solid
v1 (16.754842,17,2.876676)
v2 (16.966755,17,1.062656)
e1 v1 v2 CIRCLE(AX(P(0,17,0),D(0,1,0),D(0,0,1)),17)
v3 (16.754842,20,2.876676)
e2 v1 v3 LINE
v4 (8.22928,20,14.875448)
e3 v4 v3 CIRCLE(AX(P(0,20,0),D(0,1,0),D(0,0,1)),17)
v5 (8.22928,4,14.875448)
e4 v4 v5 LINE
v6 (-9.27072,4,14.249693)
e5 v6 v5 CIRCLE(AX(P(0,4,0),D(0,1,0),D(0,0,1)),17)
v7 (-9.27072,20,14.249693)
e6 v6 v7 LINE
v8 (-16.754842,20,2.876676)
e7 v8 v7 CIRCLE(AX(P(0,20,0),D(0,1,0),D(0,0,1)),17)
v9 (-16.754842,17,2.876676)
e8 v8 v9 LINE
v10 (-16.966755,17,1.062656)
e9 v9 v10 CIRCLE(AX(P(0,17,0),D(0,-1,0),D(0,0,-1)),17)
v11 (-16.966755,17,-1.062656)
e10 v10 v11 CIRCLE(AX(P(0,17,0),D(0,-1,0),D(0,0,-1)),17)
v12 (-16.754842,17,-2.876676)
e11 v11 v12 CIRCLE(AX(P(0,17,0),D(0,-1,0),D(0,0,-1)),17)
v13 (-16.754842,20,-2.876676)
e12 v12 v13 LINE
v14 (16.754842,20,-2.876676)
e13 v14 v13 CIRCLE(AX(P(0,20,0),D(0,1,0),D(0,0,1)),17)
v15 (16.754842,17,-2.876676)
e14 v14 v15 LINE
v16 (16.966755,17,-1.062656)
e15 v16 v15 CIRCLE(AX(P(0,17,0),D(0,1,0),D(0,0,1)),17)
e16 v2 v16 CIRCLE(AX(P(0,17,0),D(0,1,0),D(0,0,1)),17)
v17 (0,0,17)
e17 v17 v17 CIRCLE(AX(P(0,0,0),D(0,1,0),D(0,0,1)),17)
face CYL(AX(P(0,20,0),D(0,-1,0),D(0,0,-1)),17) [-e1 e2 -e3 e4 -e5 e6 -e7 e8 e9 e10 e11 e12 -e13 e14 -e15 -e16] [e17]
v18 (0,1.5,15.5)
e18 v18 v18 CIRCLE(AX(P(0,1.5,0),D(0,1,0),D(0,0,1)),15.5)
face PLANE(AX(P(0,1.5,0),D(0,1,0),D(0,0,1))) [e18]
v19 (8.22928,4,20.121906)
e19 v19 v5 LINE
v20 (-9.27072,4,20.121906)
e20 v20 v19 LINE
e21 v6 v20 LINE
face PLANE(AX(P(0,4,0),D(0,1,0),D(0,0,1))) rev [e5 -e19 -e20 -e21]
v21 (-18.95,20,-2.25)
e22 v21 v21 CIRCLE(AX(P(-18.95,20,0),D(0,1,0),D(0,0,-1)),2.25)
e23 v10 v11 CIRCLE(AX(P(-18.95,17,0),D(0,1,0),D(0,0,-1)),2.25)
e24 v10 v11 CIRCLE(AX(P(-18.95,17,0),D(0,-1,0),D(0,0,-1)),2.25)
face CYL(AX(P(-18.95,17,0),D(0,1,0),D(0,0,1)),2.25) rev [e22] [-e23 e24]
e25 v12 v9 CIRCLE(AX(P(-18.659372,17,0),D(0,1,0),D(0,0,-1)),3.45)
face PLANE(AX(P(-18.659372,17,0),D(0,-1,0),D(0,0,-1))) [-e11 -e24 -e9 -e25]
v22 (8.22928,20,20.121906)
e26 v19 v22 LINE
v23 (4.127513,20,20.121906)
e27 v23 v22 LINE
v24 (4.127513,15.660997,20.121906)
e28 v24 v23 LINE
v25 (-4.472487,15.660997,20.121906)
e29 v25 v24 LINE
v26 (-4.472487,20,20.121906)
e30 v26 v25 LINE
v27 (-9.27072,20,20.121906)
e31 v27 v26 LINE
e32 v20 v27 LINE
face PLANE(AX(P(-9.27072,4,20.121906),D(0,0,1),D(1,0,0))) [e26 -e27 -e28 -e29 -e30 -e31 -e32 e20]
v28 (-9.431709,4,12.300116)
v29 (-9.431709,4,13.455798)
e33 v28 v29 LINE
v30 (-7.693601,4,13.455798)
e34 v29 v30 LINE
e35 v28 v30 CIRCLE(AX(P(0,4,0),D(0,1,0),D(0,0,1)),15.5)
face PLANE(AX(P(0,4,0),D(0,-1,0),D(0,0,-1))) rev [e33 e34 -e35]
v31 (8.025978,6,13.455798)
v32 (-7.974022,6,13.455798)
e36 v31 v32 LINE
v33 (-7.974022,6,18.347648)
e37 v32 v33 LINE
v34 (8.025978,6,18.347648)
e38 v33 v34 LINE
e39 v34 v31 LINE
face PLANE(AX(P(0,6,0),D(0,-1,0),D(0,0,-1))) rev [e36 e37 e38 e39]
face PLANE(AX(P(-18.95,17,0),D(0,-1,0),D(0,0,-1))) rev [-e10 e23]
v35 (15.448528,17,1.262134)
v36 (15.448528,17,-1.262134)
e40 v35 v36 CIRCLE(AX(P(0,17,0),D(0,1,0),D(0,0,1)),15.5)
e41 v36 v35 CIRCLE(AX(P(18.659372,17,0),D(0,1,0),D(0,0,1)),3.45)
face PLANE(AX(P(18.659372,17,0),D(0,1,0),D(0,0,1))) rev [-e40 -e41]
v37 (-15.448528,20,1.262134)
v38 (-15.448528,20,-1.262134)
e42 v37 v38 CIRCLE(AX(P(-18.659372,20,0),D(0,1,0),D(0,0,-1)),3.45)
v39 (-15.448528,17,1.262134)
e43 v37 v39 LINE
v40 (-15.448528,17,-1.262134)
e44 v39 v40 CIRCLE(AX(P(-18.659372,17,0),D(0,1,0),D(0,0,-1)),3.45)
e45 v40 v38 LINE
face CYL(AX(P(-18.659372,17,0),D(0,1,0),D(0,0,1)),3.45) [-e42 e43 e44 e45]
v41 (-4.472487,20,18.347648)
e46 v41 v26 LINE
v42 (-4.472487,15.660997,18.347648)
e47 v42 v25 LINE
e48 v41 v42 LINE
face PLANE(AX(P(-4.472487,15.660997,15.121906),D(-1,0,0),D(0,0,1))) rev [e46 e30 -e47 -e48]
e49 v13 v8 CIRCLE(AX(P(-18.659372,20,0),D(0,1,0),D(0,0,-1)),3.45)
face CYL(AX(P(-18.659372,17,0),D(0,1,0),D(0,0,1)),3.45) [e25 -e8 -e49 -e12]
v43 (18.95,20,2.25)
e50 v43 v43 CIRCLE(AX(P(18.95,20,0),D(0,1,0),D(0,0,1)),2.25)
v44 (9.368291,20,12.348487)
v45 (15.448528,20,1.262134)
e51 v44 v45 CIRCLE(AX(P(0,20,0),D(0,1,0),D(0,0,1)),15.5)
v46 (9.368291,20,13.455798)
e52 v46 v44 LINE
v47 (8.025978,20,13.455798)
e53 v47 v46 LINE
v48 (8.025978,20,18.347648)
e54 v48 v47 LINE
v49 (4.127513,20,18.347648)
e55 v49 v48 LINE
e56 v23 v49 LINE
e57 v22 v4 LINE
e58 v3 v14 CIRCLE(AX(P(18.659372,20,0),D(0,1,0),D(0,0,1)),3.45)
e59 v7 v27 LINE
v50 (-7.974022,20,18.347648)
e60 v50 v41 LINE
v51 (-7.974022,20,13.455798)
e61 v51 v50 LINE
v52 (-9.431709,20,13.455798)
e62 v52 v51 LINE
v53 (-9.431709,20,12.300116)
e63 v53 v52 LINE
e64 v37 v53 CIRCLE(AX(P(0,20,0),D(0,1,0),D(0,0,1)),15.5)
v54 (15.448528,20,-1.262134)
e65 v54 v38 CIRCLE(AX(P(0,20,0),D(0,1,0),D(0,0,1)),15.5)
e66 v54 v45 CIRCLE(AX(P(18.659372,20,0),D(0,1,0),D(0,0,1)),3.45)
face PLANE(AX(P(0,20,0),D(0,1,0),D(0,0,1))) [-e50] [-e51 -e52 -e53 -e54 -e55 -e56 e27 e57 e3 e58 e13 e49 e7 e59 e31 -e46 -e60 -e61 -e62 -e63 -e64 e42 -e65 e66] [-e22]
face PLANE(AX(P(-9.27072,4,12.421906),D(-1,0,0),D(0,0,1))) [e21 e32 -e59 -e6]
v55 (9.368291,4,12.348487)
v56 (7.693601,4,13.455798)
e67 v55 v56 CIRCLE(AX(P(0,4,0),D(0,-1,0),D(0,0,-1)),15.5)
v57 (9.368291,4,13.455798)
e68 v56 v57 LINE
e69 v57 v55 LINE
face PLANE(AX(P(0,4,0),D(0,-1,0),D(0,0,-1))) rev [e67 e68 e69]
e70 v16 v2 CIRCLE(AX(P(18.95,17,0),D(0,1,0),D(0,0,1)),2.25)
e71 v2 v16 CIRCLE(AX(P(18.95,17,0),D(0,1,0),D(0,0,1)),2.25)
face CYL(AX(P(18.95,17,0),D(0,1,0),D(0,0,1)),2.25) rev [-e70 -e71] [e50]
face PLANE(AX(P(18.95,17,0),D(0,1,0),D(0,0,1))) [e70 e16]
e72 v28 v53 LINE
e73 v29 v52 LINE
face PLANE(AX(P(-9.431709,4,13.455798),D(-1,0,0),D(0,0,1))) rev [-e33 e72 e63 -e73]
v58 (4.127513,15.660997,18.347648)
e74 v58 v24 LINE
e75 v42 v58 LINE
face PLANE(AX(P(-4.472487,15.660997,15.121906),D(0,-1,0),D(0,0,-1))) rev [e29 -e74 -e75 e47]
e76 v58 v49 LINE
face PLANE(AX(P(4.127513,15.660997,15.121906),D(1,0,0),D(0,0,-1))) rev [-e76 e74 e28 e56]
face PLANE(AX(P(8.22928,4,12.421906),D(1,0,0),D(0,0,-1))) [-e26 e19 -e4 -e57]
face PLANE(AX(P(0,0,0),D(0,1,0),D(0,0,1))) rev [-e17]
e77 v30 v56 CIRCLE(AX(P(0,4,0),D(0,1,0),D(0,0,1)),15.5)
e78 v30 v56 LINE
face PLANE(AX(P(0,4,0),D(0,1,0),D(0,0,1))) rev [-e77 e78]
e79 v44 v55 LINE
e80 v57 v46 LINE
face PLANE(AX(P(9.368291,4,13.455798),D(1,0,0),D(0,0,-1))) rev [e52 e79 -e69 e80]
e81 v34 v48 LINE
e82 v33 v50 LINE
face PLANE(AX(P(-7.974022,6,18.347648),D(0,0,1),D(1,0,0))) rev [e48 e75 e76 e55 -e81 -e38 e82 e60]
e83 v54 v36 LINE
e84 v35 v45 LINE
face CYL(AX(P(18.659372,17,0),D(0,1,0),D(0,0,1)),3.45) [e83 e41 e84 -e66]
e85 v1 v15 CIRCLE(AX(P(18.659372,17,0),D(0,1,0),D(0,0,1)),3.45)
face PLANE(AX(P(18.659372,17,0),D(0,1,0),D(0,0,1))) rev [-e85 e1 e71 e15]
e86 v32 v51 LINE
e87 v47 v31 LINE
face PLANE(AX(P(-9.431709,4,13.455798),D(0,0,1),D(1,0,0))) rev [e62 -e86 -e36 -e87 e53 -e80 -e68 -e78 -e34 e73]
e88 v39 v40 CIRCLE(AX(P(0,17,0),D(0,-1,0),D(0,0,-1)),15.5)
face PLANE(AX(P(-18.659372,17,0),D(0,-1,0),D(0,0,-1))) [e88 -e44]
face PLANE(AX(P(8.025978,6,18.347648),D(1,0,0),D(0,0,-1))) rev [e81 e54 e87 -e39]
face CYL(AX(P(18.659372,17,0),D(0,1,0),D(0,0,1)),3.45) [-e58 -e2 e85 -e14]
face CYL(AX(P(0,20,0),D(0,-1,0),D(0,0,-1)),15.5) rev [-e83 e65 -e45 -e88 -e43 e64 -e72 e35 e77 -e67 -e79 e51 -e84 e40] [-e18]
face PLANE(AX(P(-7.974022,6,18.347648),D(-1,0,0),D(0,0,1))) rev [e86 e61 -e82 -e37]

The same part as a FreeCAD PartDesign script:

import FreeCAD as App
import Part
import Sketcher
from FreeCAD import Vector


def edges_at(feature, points):
    """Names of the edges that pass closest to the given points."""
    edges = feature.Shape.Edges
    near = lambda p: min(range(len(edges)), key=lambda i: edges[i].distToShape(Part.Vertex(*p))[0])
    return sorted({f"Edge{near(p) + 1}" for p in points})


def faces_at(feature, points):
    """Names of the faces that lie closest to the given points."""
    faces = feature.Shape.Faces
    near = lambda p: min(range(len(faces)), key=lambda i: faces[i].distToShape(Part.Vertex(*p))[0])
    return sorted({f"Face{near(p) + 1}" for p in points})

doc = App.newDocument("Part")
body = doc.addObject("PartDesign::Body", "Body")

# Sketch on XZ plane
sketch1 = body.newObject("Sketcher::SketchObject", "Sketch")
sketch1.AttachmentSupport = (doc.getObject("XZ_Plane"), [""])
sketch1.MapMode = "FlatFace"
sketch1.addGeometry(Part.Circle(Vector(0, 0, 0), Vector(0, 0, 1), 17), False)
sketch1.addConstraint([
    Sketcher.Constraint("Coincident", 0, 3, -1, 1),
    Sketcher.Constraint("Diameter", 0, 34.0),
])
pad1 = body.newObject("PartDesign::Pad", "Pad")
pad1.Profile = sketch1
pad1.Length = 20
pad1.Reversed = True
doc.recompute()

thickness = body.newObject("PartDesign::Thickness", "Thickness")
thickness.Base = (pad1, faces_at(pad1, [(0, 20, 0)]))
thickness.Value = 1.5
thickness.Reversed = True
thickness.Join = "Intersection"

# Sketch on XZ plane
sketch2 = body.newObject("Sketcher::SketchObject", "Sketch001")
sketch2.AttachmentSupport = (doc.getObject("XZ_Plane"), [""])
sketch2.MapMode = "FlatFace"
sketch2.AttachmentOffset = App.Placement(Vector(0, 0, -20), App.Rotation())
sketch2.addGeometry([
    Part.Circle(Vector(18.7, 0, 0), Vector(0, 0, 1), 3.5),
    Part.Circle(Vector(-18.7, 0, 0), Vector(0, 0, 1), 3.5),
], False)
sketch2.addConstraint([
    Sketcher.Constraint("Equal", 0, 1),
    Sketcher.Constraint("Symmetric", 0, 3, 1, 3, -1, 1),
    Sketcher.Constraint("PointOnObject", 0, 3, -1),
    Sketcher.Constraint("Diameter", 0, 6.9),
    Sketcher.Constraint("DistanceX", -1, 1, 0, 3, 18.659372),
])
pad2 = body.newObject("PartDesign::Pad", "Pad001")
pad2.Profile = sketch2
pad2.Length = 3

# Sketch on XZ plane
sketch3 = body.newObject("Sketcher::SketchObject", "Sketch002")
sketch3.AttachmentSupport = (doc.getObject("XZ_Plane"), [""])
sketch3.MapMode = "FlatFace"
sketch3.AttachmentOffset = App.Placement(Vector(0, 0, -20), App.Rotation())
sketch3.addGeometry([
    Part.Circle(Vector(18.9, 0, 0), Vector(0, 0, 1), 2.2),
    Part.Circle(Vector(-18.9, 0, 0), Vector(0, 0, 1), 2.2),
], False)
sketch3.addConstraint([
    Sketcher.Constraint("Equal", 0, 1),
    Sketcher.Constraint("Symmetric", 0, 3, 1, 3, -1, 1),
    Sketcher.Constraint("PointOnObject", 0, 3, -1),
    Sketcher.Constraint("Diameter", 0, 4.5),
    Sketcher.Constraint("DistanceX", 1, 3, 0, 3, 37.9),
])
pocket1 = body.newObject("PartDesign::Pocket", "Pocket")
pocket1.Profile = sketch3
pocket1.Length = 3
pocket1.Reversed = True

# Sketch on XZ plane
sketch4 = body.newObject("Sketcher::SketchObject", "Sketch003")
sketch4.AttachmentSupport = (doc.getObject("XZ_Plane"), [""])
sketch4.MapMode = "FlatFace"
sketch4.AttachmentOffset = App.Placement(Vector(0, 0, -20), App.Rotation())
sketch4.addGeometry([
    Part.LineSegment(Vector(-9, 12, 0), Vector(-9, 20, 0)),
    Part.LineSegment(Vector(-9, 20, 0), Vector(8, 20, 0)),
    Part.LineSegment(Vector(8, 20, 0), Vector(8, 12, 0)),
    Part.LineSegment(Vector(8, 12, 0), Vector(-9, 12, 0)),
], False)
sketch4.addConstraint([
    Sketcher.Constraint("Coincident", 0, 2, 1, 1),
    Sketcher.Constraint("Coincident", 1, 2, 2, 1),
    Sketcher.Constraint("Coincident", 2, 2, 3, 1),
    Sketcher.Constraint("Coincident", 3, 2, 0, 1),
    Sketcher.Constraint("Vertical", 0),
    Sketcher.Constraint("Horizontal", 1),
    Sketcher.Constraint("Vertical", 2),
    Sketcher.Constraint("Horizontal", 3),
    Sketcher.Constraint("DistanceX", 1, 1, 1, 2, 17.5),
    Sketcher.Constraint("DistanceY", 0, 1, 0, 2, 7.7),
    Sketcher.Constraint("DistanceX", 0, 2, -1, 1, 9.27072),
    Sketcher.Constraint("DistanceY", -1, 1, 0, 2, 20.121906),
])
pad3 = body.newObject("PartDesign::Pad", "Pad002")
pad3.Profile = sketch4
pad3.Length = 16

# Sketch on XZ plane
sketch5 = body.newObject("Sketcher::SketchObject", "Sketch004")
sketch5.AttachmentSupport = (doc.getObject("XZ_Plane"), [""])
sketch5.MapMode = "FlatFace"
sketch5.AttachmentOffset = App.Placement(Vector(0, 0, -20), App.Rotation())
sketch5.addGeometry([
    Part.LineSegment(Vector(-8, 10, 0), Vector(-8, 18, 0)),
    Part.LineSegment(Vector(-8, 18, 0), Vector(8, 18, 0)),
    Part.LineSegment(Vector(8, 18, 0), Vector(8, 10, 0)),
    Part.LineSegment(Vector(8, 10, 0), Vector(-8, 10, 0)),
], False)
sketch5.addConstraint([
    Sketcher.Constraint("Coincident", 0, 2, 1, 1),
    Sketcher.Constraint("Coincident", 1, 2, 2, 1),
    Sketcher.Constraint("Coincident", 2, 2, 3, 1),
    Sketcher.Constraint("Coincident", 3, 2, 0, 1),
    Sketcher.Constraint("Vertical", 0),
    Sketcher.Constraint("Horizontal", 1),
    Sketcher.Constraint("Vertical", 2),
    Sketcher.Constraint("Horizontal", 3),
    Sketcher.Constraint("DistanceX", 1, 1, 1, 2, 16.0),
    Sketcher.Constraint("DistanceY", 0, 1, 0, 2, 8.6),
    Sketcher.Constraint("DistanceX", 0, 2, -1, 1, 7.974022),
    Sketcher.Constraint("DistanceY", -1, 1, 0, 2, 18.347648),
])
pocket2 = body.newObject("PartDesign::Pocket", "Pocket001")
pocket2.Profile = sketch5
pocket2.Length = 14
pocket2.Reversed = True

# Sketch on XY plane
sketch6 = body.newObject("Sketcher::SketchObject", "Sketch005")
sketch6.AttachmentSupport = (doc.getObject("XY_Plane"), [""])
sketch6.MapMode = "FlatFace"
sketch6.AttachmentOffset = App.Placement(Vector(0, 0, 20.121906), App.Rotation())
sketch6.addGeometry([
    Part.LineSegment(Vector(-4, 21, 0), Vector(-4, 16, 0)),
    Part.LineSegment(Vector(-4, 16, 0), Vector(4, 16, 0)),
    Part.LineSegment(Vector(4, 16, 0), Vector(4, 21, 0)),
    Part.LineSegment(Vector(4, 21, 0), Vector(-4, 21, 0)),
], False)
sketch6.addConstraint([
    Sketcher.Constraint("Coincident", 0, 2, 1, 1),
    Sketcher.Constraint("Coincident", 1, 2, 2, 1),
    Sketcher.Constraint("Coincident", 2, 2, 3, 1),
    Sketcher.Constraint("Coincident", 3, 2, 0, 1),
    Sketcher.Constraint("Vertical", 0),
    Sketcher.Constraint("Horizontal", 1),
    Sketcher.Constraint("Vertical", 2),
    Sketcher.Constraint("Horizontal", 3),
    Sketcher.Constraint("DistanceX", 1, 1, 1, 2, 8.6),
    Sketcher.Constraint("DistanceY", 0, 2, 0, 1, 5.8),
    Sketcher.Constraint("DistanceX", 0, 2, -1, 1, 4.472487),
    Sketcher.Constraint("DistanceY", -1, 1, 0, 2, 15.660997),
])
pocket3 = body.newObject("PartDesign::Pocket", "Pocket002")
pocket3.Profile = sketch6
pocket3.Length = 5
doc.recompute()

fillet = body.newObject("PartDesign::Fillet", "Fillet")
fillet.Base = (pocket3, edges_at(pocket3, [(-0.521, 4, 12.422)]))
fillet.Radius = 1

# Sketch on XZ plane
sketch7 = body.newObject("Sketcher::SketchObject", "Sketch006")
sketch7.AttachmentSupport = (doc.getObject("XZ_Plane"), [""])
sketch7.MapMode = "FlatFace"
sketch7.AttachmentOffset = App.Placement(Vector(0, 0, -20), App.Rotation())
sketch7.addGeometry([
    Part.LineSegment(Vector(-9.4, 10.5, 0), Vector(-9.4, 13.5, 0)),
    Part.LineSegment(Vector(-9.4, 13.5, 0), Vector(9.4, 13.5, 0)),
    Part.LineSegment(Vector(9.4, 13.5, 0), Vector(9.4, 10.5, 0)),
    Part.LineSegment(Vector(9.4, 10.5, 0), Vector(-9.4, 10.5, 0)),
], False)
sketch7.addConstraint([
    Sketcher.Constraint("Coincident", 0, 2, 1, 1),
    Sketcher.Constraint("Coincident", 1, 2, 2, 1),
    Sketcher.Constraint("Coincident", 2, 2, 3, 1),
    Sketcher.Constraint("Coincident", 3, 2, 0, 1),
    Sketcher.Constraint("Vertical", 0),
    Sketcher.Constraint("Horizontal", 1),
    Sketcher.Constraint("Vertical", 2),
    Sketcher.Constraint("Horizontal", 3),
    Sketcher.Constraint("DistanceY", 0, 1, 0, 2, 3.0),
    Sketcher.Constraint("DistanceX", 1, 1, 1, 2, 18.8),
    Sketcher.Constraint("DistanceY", -1, 1, 0, 2, 13.455798),
    Sketcher.Constraint("DistanceX", 0, 2, -1, 1, 9.431709),
])
pocket4 = body.newObject("PartDesign::Pocket", "Pocket003")
pocket4.Profile = sketch7
pocket4.Length = 16
pocket4.Reversed = True

doc.recompute()
